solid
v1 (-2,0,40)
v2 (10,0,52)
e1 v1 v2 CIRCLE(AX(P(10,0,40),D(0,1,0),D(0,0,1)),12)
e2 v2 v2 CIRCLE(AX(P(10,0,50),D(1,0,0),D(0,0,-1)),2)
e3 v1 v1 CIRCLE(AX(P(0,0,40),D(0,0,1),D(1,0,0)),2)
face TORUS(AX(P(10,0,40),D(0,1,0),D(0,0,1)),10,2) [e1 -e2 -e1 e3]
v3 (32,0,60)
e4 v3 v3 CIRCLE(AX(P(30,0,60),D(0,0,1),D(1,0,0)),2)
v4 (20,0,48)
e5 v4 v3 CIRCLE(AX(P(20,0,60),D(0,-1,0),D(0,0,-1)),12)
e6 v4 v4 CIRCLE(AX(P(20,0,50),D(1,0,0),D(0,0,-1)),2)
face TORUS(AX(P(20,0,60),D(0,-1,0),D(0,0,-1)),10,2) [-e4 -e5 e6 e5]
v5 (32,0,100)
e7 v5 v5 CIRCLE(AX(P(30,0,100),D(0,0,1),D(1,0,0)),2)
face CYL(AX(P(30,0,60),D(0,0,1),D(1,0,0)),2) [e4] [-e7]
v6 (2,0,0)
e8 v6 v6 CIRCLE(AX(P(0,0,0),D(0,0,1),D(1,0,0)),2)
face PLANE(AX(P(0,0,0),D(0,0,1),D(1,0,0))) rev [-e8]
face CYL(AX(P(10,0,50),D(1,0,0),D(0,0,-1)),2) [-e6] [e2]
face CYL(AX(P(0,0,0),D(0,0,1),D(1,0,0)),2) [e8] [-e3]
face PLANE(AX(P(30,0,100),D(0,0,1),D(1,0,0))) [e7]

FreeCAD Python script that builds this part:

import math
import FreeCAD as App
import Part
import Sketcher

doc = App.newDocument("Part")
body = doc.addObject("PartDesign::Body", "Body")

# Sketch on XY plane
sketch1 = doc.addObject("Sketcher::SketchObject", "Sketch")
body.addObject(sketch1)
sketch1.AttachmentSupport = (doc.XY_Plane, [""])
sketch1.MapMode = "FlatFace"
sketch1.addGeometry(Part.Circle(App.Vector(0, 0, 0), App.Vector(0, 0, 1), 2), False)
sketch1.addConstraint(Sketcher.Constraint("Coincident", 0, 3, -1, 1))
sketch1.addConstraint(Sketcher.Constraint("Diameter", 0, 4.0))

# Sketch on XZ plane
sketch2 = doc.addObject("Sketcher::SketchObject", "Sketch001")
body.addObject(sketch2)
sketch2.AttachmentSupport = (doc.XZ_Plane, [""])
sketch2.MapMode = "FlatFace"
sketch2.addGeometry(Part.LineSegment(App.Vector(0, 0, 0), App.Vector(0, 40, 0)), False)
sketch2.addGeometry(Part.ArcOfCircle(Part.Circle(App.Vector(10, 40, 0), App.Vector(0, 0, 1), 10), math.radians(90), math.radians(180)), False)
sketch2.addGeometry(Part.LineSegment(App.Vector(10, 50, 0), App.Vector(20, 50, 0)), False)
sketch2.addGeometry(Part.ArcOfCircle(Part.Circle(App.Vector(20, 60, 0), App.Vector(0, 0, 1), 10), math.radians(-90), math.radians(0)), False)
sketch2.addGeometry(Part.LineSegment(App.Vector(30, 60, 0), App.Vector(30, 100, 0)), False)
sketch2.addConstraint(Sketcher.Constraint("Tangent", 0, 2, 1, 2))
sketch2.addConstraint(Sketcher.Constraint("Tangent", 1, 1, 2, 1))
sketch2.addConstraint(Sketcher.Constraint("Tangent", 2, 2, 3, 1))
sketch2.addConstraint(Sketcher.Constraint("Tangent", 3, 2, 4, 1))
sketch2.addConstraint(Sketcher.Constraint("Vertical", 0))
sketch2.addConstraint(Sketcher.Constraint("Horizontal", 2))
sketch2.addConstraint(Sketcher.Constraint("Vertical", 4))
sketch2.addConstraint(Sketcher.Constraint("Coincident", 0, 1, -1, 1))
sketch2.addConstraint(Sketcher.Constraint("Equal", 1, 3))
sketch2.addConstraint(Sketcher.Constraint("Equal", 0, 4))
sketch2.addConstraint(Sketcher.Constraint("Radius", 1, 10.0))
sketch2.addConstraint(Sketcher.Constraint("DistanceX", 2, 1, 2, 2, 10.0))
sketch2.addConstraint(Sketcher.Constraint("DistanceY", 0, 1, 0, 2, 40.0))
doc.recompute()

additivepipe = doc.addObject("PartDesign::AdditivePipe", "AdditivePipe")
body.addObject(additivepipe)
additivepipe.Profile = sketch1
additivepipe.Spine = (sketch2, ["Edge1", "Edge2", "Edge3", "Edge4", "Edge5"])

doc.recompute()
